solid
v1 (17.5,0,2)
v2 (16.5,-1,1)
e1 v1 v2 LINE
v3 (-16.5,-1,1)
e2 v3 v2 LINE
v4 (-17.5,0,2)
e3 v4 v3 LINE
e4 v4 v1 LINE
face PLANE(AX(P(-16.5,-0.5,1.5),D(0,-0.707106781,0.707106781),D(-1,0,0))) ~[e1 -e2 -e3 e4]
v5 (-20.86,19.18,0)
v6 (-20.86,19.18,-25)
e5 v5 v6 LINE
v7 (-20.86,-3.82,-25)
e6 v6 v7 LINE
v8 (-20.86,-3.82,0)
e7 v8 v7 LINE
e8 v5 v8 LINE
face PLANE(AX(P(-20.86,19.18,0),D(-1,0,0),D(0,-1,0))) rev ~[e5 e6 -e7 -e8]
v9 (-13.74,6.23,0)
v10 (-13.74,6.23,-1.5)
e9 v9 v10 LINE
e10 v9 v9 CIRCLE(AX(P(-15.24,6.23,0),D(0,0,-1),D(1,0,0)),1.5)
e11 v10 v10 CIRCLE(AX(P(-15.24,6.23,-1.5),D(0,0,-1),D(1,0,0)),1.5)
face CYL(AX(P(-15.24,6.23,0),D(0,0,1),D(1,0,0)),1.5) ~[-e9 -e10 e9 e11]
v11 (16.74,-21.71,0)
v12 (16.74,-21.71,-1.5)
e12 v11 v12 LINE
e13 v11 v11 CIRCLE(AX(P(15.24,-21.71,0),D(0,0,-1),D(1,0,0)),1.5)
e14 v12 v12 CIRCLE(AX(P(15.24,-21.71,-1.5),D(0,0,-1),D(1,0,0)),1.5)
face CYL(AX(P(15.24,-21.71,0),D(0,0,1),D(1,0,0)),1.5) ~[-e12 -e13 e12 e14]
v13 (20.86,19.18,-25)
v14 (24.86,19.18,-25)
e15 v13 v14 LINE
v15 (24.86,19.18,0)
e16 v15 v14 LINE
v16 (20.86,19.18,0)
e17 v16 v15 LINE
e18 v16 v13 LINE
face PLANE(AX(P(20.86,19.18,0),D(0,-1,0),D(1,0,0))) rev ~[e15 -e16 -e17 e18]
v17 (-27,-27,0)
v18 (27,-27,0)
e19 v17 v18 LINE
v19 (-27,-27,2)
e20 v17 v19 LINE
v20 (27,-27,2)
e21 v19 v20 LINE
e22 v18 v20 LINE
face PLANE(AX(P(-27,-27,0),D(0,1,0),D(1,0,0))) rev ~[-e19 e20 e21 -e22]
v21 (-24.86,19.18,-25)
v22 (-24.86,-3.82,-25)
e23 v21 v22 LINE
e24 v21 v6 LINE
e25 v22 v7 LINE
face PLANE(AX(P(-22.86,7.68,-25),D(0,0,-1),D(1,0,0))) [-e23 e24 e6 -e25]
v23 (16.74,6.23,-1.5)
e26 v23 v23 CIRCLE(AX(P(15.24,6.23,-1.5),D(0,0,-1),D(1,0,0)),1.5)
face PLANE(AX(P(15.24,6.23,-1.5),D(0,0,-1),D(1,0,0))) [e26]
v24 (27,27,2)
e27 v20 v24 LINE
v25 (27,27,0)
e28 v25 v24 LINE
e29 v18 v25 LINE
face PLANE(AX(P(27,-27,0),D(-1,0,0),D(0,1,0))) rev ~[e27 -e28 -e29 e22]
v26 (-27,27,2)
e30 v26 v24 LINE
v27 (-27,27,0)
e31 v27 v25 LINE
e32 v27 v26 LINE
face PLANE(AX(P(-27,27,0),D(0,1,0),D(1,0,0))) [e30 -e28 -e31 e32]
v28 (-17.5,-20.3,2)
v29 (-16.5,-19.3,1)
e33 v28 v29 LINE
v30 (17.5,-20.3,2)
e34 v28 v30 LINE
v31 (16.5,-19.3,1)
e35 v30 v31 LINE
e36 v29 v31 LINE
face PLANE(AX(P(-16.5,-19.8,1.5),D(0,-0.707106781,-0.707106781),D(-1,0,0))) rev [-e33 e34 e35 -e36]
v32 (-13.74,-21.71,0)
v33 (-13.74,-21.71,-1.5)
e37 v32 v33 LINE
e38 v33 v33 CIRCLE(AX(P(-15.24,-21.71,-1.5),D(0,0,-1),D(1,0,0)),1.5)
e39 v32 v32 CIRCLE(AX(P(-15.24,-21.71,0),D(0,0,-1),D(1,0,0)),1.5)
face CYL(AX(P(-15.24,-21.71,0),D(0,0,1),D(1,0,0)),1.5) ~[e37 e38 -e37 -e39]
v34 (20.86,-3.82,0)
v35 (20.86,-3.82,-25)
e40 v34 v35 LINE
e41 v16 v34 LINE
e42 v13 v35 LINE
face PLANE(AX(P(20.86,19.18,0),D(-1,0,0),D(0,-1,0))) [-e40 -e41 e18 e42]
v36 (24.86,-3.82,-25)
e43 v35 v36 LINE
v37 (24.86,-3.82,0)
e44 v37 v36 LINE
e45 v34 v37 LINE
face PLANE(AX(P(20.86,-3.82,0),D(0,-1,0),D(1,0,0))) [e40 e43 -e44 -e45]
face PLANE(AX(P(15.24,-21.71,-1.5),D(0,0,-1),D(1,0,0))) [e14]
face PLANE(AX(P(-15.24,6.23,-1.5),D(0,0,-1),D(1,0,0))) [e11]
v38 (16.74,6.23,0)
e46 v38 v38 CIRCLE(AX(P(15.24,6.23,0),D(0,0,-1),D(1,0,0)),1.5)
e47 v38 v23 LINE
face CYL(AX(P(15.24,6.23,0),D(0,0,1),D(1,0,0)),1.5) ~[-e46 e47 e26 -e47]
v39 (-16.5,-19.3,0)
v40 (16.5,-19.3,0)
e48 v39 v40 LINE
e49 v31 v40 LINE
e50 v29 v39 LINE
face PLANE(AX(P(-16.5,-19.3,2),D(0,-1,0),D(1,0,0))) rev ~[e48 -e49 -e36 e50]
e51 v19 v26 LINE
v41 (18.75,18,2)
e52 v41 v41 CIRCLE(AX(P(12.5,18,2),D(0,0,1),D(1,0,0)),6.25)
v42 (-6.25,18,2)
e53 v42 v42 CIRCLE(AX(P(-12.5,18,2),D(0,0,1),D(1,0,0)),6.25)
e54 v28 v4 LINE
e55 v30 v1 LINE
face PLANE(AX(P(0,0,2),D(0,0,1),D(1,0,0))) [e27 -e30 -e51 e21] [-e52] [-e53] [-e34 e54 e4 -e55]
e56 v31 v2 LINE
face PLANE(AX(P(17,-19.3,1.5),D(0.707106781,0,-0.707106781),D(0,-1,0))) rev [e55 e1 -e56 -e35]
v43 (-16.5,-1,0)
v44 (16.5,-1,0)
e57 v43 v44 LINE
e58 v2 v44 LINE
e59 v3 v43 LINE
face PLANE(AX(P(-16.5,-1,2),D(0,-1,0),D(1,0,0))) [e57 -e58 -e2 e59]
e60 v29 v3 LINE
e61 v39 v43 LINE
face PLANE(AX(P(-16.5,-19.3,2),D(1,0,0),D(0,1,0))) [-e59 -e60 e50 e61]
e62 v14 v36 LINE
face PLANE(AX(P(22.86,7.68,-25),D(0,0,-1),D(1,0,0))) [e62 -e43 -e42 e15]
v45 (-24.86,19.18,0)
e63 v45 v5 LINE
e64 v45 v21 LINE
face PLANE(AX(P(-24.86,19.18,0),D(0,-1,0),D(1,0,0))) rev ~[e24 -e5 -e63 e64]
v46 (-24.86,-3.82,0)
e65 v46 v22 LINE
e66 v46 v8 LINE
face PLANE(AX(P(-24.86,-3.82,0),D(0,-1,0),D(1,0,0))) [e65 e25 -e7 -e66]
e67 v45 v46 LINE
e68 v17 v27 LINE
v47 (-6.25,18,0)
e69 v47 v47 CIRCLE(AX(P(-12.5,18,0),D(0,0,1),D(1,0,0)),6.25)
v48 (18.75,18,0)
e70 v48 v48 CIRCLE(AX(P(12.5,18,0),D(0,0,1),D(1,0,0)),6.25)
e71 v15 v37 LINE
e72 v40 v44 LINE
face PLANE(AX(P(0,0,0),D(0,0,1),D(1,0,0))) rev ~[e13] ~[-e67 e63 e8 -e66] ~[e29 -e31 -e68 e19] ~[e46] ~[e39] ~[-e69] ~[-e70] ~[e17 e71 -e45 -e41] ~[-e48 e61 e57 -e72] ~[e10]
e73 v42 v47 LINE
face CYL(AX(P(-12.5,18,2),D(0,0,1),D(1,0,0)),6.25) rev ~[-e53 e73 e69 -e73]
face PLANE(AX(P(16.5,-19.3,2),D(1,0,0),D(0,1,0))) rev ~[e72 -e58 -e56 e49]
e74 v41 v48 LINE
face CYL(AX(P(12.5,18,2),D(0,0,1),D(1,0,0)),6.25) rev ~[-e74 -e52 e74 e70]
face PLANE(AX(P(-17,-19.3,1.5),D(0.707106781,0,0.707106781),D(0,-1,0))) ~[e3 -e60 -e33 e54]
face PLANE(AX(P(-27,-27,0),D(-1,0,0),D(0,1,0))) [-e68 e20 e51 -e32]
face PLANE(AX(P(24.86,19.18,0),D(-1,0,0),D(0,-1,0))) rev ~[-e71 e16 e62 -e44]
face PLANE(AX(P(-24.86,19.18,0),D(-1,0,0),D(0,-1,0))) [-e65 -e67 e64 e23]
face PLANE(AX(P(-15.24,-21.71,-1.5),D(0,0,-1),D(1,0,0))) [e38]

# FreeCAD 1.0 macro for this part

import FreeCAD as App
import Part
import Sketcher
Q = App.Units.Quantity


def edges_at(feature, points):
    """Names of the edges that pass closest to the given points."""
    edges = feature.Shape.Edges
    near = lambda p: min(range(len(edges)), key=lambda i: edges[i].distToShape(Part.Vertex(*p))[0])
    return sorted({f"Edge{near(p) + 1}" for p in points})

doc = App.newDocument("Part")
body = doc.addObject("PartDesign::Body", "Body")

# Sketch on XY plane
sketch1 = body.newObject("Sketcher::SketchObject", "Sketch")
sketch1.AttachmentSupport = (doc.getObject("XY_Plane"), [""])
sketch1.MapMode = "FlatFace"
sketch1.addGeometry([
    Part.LineSegment(App.Vector(-27, 27, 0), App.Vector(-27, -27, 0)),
    Part.LineSegment(App.Vector(-27, -27, 0), App.Vector(27, -27, 0)),
    Part.LineSegment(App.Vector(27, -27, 0), App.Vector(27, 27, 0)),
    Part.LineSegment(App.Vector(27, 27, 0), App.Vector(-27, 27, 0)),
], False)
sketch1.addConstraint([
    Sketcher.Constraint("Coincident", 0, 2, 1, 1),
    Sketcher.Constraint("Coincident", 1, 2, 2, 1),
    Sketcher.Constraint("Coincident", 2, 2, 3, 1),
    Sketcher.Constraint("Coincident", 3, 2, 0, 1),
    Sketcher.Constraint("Vertical", 0),
    Sketcher.Constraint("Horizontal", 1),
    Sketcher.Constraint("Vertical", 2),
    Sketcher.Constraint("Horizontal", 3),
    Sketcher.Constraint("Symmetric", 0, 2, 2, 2, -1, 1),
    Sketcher.Constraint("Equal", 3, 0),
    Sketcher.Constraint("DistanceX", 1, 1, 1, 2, Q("54 mm")),
])
pad1 = body.newObject("PartDesign::Pad", "Pad")
pad1.Profile = sketch1
pad1.Length = 2

# Sketch on XY plane
sketch2 = body.newObject("Sketcher::SketchObject", "Sketch001")
sketch2.AttachmentSupport = (doc.getObject("XY_Plane"), [""])
sketch2.MapMode = "FlatFace"
sketch2.AttachmentOffset = App.Placement(App.Vector(0, 0, 2), App.Rotation())
sketch2.addGeometry([
    Part.Circle(App.Vector(-12.5, 18, 0), App.Vector(0, 0, 1), 6.25),  # 0
    Part.Circle(App.Vector(12.5, 18, 0), App.Vector(0, 0, 1), 6.25),  # 1
    Part.LineSegment(App.Vector(-16.5, -1, 0), App.Vector(-16.5, -19.3, 0)),  # 2
    Part.LineSegment(App.Vector(-16.5, -19.3, 0), App.Vector(16.5, -19.3, 0)),  # 3
    Part.LineSegment(App.Vector(16.5, -19.3, 0), App.Vector(16.5, -1, 0)),  # 4
    Part.LineSegment(App.Vector(16.5, -1, 0), App.Vector(-16.5, -1, 0)),  # 5
], False)
sketch2.addConstraint([
    Sketcher.Constraint("Coincident", 2, 2, 3, 1),
    Sketcher.Constraint("Coincident", 3, 2, 4, 1),
    Sketcher.Constraint("Coincident", 4, 2, 5, 1),
    Sketcher.Constraint("Coincident", 5, 2, 2, 1),
    Sketcher.Constraint("Vertical", 2),
    Sketcher.Constraint("Horizontal", 3),
    Sketcher.Constraint("Vertical", 4),
    Sketcher.Constraint("Horizontal", 5),
    Sketcher.Constraint("Equal", 0, 1),
    Sketcher.Constraint("Symmetric", 0, 3, 1, 3, -2),
    Sketcher.Constraint("Diameter", 0, Q("12.5 mm")),
    Sketcher.Constraint("DistanceX", 3, 1, 3, 2, Q("33 mm")),
    Sketcher.Constraint("DistanceY", 2, 2, 2, 1, Q("18.3 mm")),
    Sketcher.Constraint("DistanceY", -1, 1, 0, 3, Q("18 mm")),
    Sketcher.Constraint("DistanceY", 4, 2, -1, 1, Q("1 mm")),
    Sketcher.Constraint("DistanceX", 0, 3, 1, 3, Q("25 mm")),
    Sketcher.Constraint("DistanceX", 2, 2, 0, 3, Q("4 mm")),
])
pocket1 = body.newObject("PartDesign::Pocket", "Pocket")
pocket1.Profile = sketch2
pocket1.Length = 2

# Sketch on XY plane
sketch3 = body.newObject("Sketcher::SketchObject", "Sketch002")
sketch3.AttachmentSupport = (doc.getObject("XY_Plane"), [""])
sketch3.MapMode = "FlatFace"
sketch3.addGeometry([
    Part.Circle(App.Vector(-15.24, -21.71, 0), App.Vector(0, 0, 1), 1.5),
    Part.Circle(App.Vector(15.24, -21.71, 0), App.Vector(0, 0, 1), 1.5),
    Part.Circle(App.Vector(15.24, 6.23, 0), App.Vector(0, 0, 1), 1.5),
    Part.Circle(App.Vector(-15.24, 6.23, 0), App.Vector(0, 0, 1), 1.5),
], False)
sketch3.addConstraint([
    Sketcher.Constraint("Equal", 0, 1),
    Sketcher.Constraint("Equal", 1, 2),
    Sketcher.Constraint("Equal", 2, 3),
    Sketcher.Constraint("Symmetric", 0, 3, 1, 3, -2),
    Sketcher.Constraint("Symmetric", 2, 3, 3, 3, -2),
    Sketcher.Constraint("Vertical", 1, 3, 2, 3),
    Sketcher.Constraint("Diameter", 0, Q("3 mm")),
    Sketcher.Constraint("DistanceX", 0, 3, -1, 1, Q("15.24 mm")),
    Sketcher.Constraint("DistanceY", 0, 3, -1, 1, Q("21.71 mm")),
    Sketcher.Constraint("DistanceY", -1, 1, 2, 3, Q("6.23 mm")),
])
pad2 = body.newObject("PartDesign::Pad", "Pad001")
pad2.Profile = sketch3
pad2.Length = 1.5
pad2.Reversed = True

# Sketch on XY plane
sketch4 = body.newObject("Sketcher::SketchObject", "Sketch003")
sketch4.AttachmentSupport = (doc.getObject("XY_Plane"), [""])
sketch4.MapMode = "FlatFace"
sketch4.addGeometry([
    Part.LineSegment(App.Vector(-24.86, -3.82, 0), App.Vector(-24.86, 19.18, 0)),  # 0
    Part.LineSegment(App.Vector(-24.86, 19.18, 0), App.Vector(-20.86, 19.18, 0)),  # 1
    Part.LineSegment(App.Vector(-20.86, 19.18, 0), App.Vector(-20.86, -3.82, 0)),  # 2
    Part.LineSegment(App.Vector(-20.86, -3.82, 0), App.Vector(-24.86, -3.82, 0)),  # 3
    Part.LineSegment(App.Vector(20.86, -3.82, 0), App.Vector(20.86, 19.18, 0)),  # 4
    Part.LineSegment(App.Vector(20.86, 19.18, 0), App.Vector(24.86, 19.18, 0)),  # 5
    Part.LineSegment(App.Vector(24.86, 19.18, 0), App.Vector(24.86, -3.82, 0)),  # 6
    Part.LineSegment(App.Vector(24.86, -3.82, 0), App.Vector(20.86, -3.82, 0)),  # 7
], False)
sketch4.addConstraint([
    Sketcher.Constraint("Coincident", 0, 2, 1, 1),
    Sketcher.Constraint("Coincident", 1, 2, 2, 1),
    Sketcher.Constraint("Coincident", 2, 2, 3, 1),
    Sketcher.Constraint("Coincident", 3, 2, 0, 1),
    Sketcher.Constraint("Coincident", 4, 2, 5, 1),
    Sketcher.Constraint("Coincident", 5, 2, 6, 1),
    Sketcher.Constraint("Coincident", 6, 2, 7, 1),
    Sketcher.Constraint("Coincident", 7, 2, 4, 1),
    Sketcher.Constraint("Vertical", 0),
    Sketcher.Constraint("Horizontal", 1),
    Sketcher.Constraint("Vertical", 2),
    Sketcher.Constraint("Horizontal", 3),
    Sketcher.Constraint("Vertical", 4),
    Sketcher.Constraint("Horizontal", 5),
    Sketcher.Constraint("Vertical", 6),
    Sketcher.Constraint("Horizontal", 7),
    Sketcher.Constraint("Symmetric", 1, 2, 4, 2, -2),
    Sketcher.Constraint("Symmetric", 3, 2, 6, 2, -2),
    Sketcher.Constraint("DistanceX", 1, 1, 1, 2, Q("4 mm")),
    Sketcher.Constraint("DistanceY", 0, 1, 0, 2, Q("23 mm")),
    Sketcher.Constraint("DistanceX", 0, 2, -1, 1, Q("24.86 mm")),
    Sketcher.Constraint("DistanceY", -1, 1, 0, 2, Q("19.18 mm")),
])
pad3 = body.newObject("PartDesign::Pad", "Pad002")
pad3.Profile = sketch4
pad3.Length = 25
pad3.Reversed = True
doc.recompute()

chamfer = body.newObject("PartDesign::Chamfer", "Chamfer")
chamfer.Base = (pad3, edges_at(pad3, [
    (0, -19.3, 2),
    (-16.5, -10.15, 2),
    (0, -1, 2),
    (16.5, -10.15, 2),
]))
chamfer.Size = 1

doc.recompute()
